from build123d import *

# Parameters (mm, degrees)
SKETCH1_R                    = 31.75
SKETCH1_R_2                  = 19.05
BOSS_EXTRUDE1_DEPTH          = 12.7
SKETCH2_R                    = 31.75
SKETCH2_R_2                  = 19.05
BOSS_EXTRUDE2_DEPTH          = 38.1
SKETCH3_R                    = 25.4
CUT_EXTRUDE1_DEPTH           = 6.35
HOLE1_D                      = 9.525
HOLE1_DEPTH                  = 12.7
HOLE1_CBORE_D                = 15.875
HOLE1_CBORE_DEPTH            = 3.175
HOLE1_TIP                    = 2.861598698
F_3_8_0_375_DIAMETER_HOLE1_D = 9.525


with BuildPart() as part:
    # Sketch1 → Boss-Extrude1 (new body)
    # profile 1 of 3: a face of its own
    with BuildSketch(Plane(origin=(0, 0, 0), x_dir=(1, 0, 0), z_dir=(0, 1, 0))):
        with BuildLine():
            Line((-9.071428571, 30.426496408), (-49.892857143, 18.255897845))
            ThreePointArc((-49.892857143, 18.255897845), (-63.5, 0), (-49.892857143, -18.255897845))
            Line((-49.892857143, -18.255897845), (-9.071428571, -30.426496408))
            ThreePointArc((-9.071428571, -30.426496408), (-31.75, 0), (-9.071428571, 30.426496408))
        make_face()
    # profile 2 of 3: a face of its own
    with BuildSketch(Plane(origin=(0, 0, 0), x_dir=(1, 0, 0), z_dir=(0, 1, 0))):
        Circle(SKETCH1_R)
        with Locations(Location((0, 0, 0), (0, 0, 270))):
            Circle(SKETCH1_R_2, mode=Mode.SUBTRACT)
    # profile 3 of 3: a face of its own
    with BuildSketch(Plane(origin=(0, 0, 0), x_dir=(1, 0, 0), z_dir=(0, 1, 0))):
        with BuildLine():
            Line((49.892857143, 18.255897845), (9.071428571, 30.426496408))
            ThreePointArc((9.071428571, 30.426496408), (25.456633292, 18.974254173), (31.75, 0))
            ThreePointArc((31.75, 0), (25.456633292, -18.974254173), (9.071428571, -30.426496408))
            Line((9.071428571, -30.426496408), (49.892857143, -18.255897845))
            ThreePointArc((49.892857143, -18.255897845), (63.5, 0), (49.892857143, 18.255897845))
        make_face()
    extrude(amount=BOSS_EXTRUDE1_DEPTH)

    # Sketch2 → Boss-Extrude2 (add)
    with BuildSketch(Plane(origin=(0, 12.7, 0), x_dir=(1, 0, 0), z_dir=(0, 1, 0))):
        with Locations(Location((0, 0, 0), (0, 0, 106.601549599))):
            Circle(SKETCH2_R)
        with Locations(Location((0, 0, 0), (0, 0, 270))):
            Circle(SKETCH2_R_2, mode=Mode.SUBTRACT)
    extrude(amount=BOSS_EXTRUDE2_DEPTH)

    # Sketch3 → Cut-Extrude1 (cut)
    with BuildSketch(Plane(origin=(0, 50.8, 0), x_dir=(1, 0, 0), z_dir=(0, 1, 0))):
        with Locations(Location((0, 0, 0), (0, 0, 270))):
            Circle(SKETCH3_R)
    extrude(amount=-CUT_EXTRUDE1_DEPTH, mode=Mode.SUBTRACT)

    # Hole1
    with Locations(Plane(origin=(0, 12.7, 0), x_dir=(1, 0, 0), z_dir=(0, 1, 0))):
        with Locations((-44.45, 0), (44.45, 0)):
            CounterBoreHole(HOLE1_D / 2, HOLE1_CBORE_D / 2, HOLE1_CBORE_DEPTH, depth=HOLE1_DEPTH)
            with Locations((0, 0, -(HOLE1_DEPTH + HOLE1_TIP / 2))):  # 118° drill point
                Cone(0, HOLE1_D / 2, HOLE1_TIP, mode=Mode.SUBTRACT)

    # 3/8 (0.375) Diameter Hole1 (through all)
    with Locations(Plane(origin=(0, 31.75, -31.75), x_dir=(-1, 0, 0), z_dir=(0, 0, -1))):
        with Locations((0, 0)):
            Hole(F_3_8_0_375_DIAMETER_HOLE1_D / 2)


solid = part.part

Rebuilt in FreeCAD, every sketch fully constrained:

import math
import FreeCAD as App
import Part
import Sketcher
from FreeCAD import Vector
Q = App.Units.Quantity

doc = App.newDocument("Part")
body = doc.addObject("PartDesign::Body", "Body")

# Sketch on XZ plane
sketch1 = body.newObject("Sketcher::SketchObject", "Sketch")
sketch1.AttachmentSupport = (doc.getObject("XZ_Plane"), [""])
sketch1.MapMode = "FlatFace"
sketch1.addGeometry(Part.LineSegment(Vector(-9.071429, -30.426496, 0), Vector(-49.892857, -18.255898, 0)), False)
sketch1.addGeometry(Part.ArcOfCircle(Part.Circle(Vector(-44.45, 0, 0), Vector(0, 0, 1), 19.05), math.radians(106.60155), math.radians(253.39845)), False)
sketch1.addGeometry(Part.LineSegment(Vector(-49.892857, 18.255898, 0), Vector(-9.071429, 30.426496, 0)), False)
sketch1.addGeometry(Part.ArcOfCircle(Part.Circle(Vector(0, 0, 0), Vector(0, 0, 1), 31.75), math.radians(73.39845), math.radians(106.60155)), False)
sketch1.addGeometry(Part.LineSegment(Vector(9.071429, 30.426496, 0), Vector(49.892857, 18.255898, 0)), False)
sketch1.addGeometry(Part.ArcOfCircle(Part.Circle(Vector(44.45, 0, 0), Vector(0, 0, 1), 19.05), math.radians(-73.39845), math.radians(73.39845)), False)
sketch1.addGeometry(Part.LineSegment(Vector(49.892857, -18.255898, 0), Vector(9.071429, -30.426496, 0)), False)
sketch1.addGeometry(Part.ArcOfCircle(Part.Circle(Vector(0, 0, 0), Vector(0, 0, 1), 31.75), math.radians(-106.60155), math.radians(-73.39845)), False)
sketch1.addGeometry(Part.Circle(Vector(0, 0, 0), Vector(0, 0, 1), 19.05), False)
sketch1.addConstraint(Sketcher.Constraint("Tangent", 0, 2, 1, 2))
sketch1.addConstraint(Sketcher.Constraint("Tangent", 1, 1, 2, 1))
sketch1.addConstraint(Sketcher.Constraint("Tangent", 2, 2, 3, 2))
sketch1.addConstraint(Sketcher.Constraint("Tangent", 3, 1, 4, 1))
sketch1.addConstraint(Sketcher.Constraint("Tangent", 4, 2, 5, 2))
sketch1.addConstraint(Sketcher.Constraint("Tangent", 5, 1, 6, 1))
sketch1.addConstraint(Sketcher.Constraint("Tangent", 6, 2, 7, 2))
sketch1.addConstraint(Sketcher.Constraint("Tangent", 7, 1, 0, 1))
sketch1.addConstraint(Sketcher.Constraint("Coincident", 3, 3, -1, 1))
sketch1.addConstraint(Sketcher.Constraint("Coincident", 7, 3, -1, 1))
sketch1.addConstraint(Sketcher.Constraint("Coincident", 8, 3, -1, 1))
sketch1.addConstraint(Sketcher.Constraint("Equal", 1, 5))
sketch1.addConstraint(Sketcher.Constraint("Equal", 3, 7))
sketch1.addConstraint(Sketcher.Constraint("Equal", 5, 8))
sketch1.addConstraint(Sketcher.Constraint("Symmetric", 1, 3, 5, 3, -1, 1))
sketch1.addConstraint(Sketcher.Constraint("PointOnObject", 1, 3, -1))
sketch1.addConstraint(Sketcher.Constraint("Diameter", 8, Q("1.5 in")))
sketch1.addConstraint(Sketcher.Constraint("Radius", 3, Q("1.25 in")))
sketch1.addConstraint(Sketcher.Constraint("DistanceX", 1, 3, 5, 3, Q("3.5 in")))
pad1 = body.newObject("PartDesign::Pad", "Pad")
pad1.Profile = sketch1
pad1.Length = Q("0.5 in")
pad1.Reversed = True

# Sketch on XZ plane
sketch2 = body.newObject("Sketcher::SketchObject", "Sketch001")
sketch2.AttachmentSupport = (doc.getObject("XZ_Plane"), [""])
sketch2.MapMode = "FlatFace"
sketch2.AttachmentOffset = App.Placement(Vector(0, 0, -0.5 * 25.4), App.Rotation())
sketch2.addGeometry(Part.Circle(Vector(0, 0, 0), Vector(0, 0, 1), 31.75), False)
sketch2.addGeometry(Part.Circle(Vector(0, 0, 0), Vector(0, 0, 1), 19.05), False)
sketch2.addConstraint(Sketcher.Constraint("Coincident", 0, 3, -1, 1))
sketch2.addConstraint(Sketcher.Constraint("Coincident", 1, 3, -1, 1))
sketch2.addConstraint(Sketcher.Constraint("Diameter", 0, Q("2.5 in")))
sketch2.addConstraint(Sketcher.Constraint("Diameter", 1, Q("1.5 in")))
pad2 = body.newObject("PartDesign::Pad", "Pad001")
pad2.Profile = sketch2
pad2.Length = Q("1.5 in")
pad2.Reversed = True

# Sketch on XZ plane
sketch3 = body.newObject("Sketcher::SketchObject", "Sketch002")
sketch3.AttachmentSupport = (doc.getObject("XZ_Plane"), [""])
sketch3.MapMode = "FlatFace"
sketch3.AttachmentOffset = App.Placement(Vector(0, 0, -2 * 25.4), App.Rotation())
sketch3.addGeometry(Part.Circle(Vector(0, 0, 0), Vector(0, 0, 1), 25.4), False)
sketch3.addConstraint(Sketcher.Constraint("Coincident", 0, 3, -1, 1))
sketch3.addConstraint(Sketcher.Constraint("Diameter", 0, Q("2 in")))
pocket1 = body.newObject("PartDesign::Pocket", "Pocket")
pocket1.Profile = sketch3
pocket1.Length = Q("0.25 in")
pocket1.Reversed = True

# Sketch on XZ plane
sketch4 = body.newObject("Sketcher::SketchObject", "Sketch003")
sketch4.AttachmentSupport = (doc.getObject("XZ_Plane"), [""])
sketch4.MapMode = "FlatFace"
sketch4.AttachmentOffset = App.Placement(Vector(0, 0, -0.5 * 25.4), App.Rotation())
sketch4.addGeometry(Part.Circle(Vector(-44.45, 0, 0), Vector(0, 0, 1), 4.7625), False)
sketch4.addGeometry(Part.Circle(Vector(44.45, 0, 0), Vector(0, 0, 1), 4.7625), False)
sketch4.addConstraint(Sketcher.Constraint("Equal", 0, 1))
sketch4.addConstraint(Sketcher.Constraint("Symmetric", 0, 3, 1, 3, -1, 1))
sketch4.addConstraint(Sketcher.Constraint("PointOnObject", 0, 3, -1))
sketch4.addConstraint(Sketcher.Constraint("Diameter", 0, Q("0.375 in")))
sketch4.addConstraint(Sketcher.Constraint("DistanceX", 0, 3, 1, 3, Q("3.5 in")))
doc.recompute()
hole = body.newObject("PartDesign::Hole", "Hole")
hole.Profile = sketch4
hole.ThreadType = "None"
hole.Diameter = Q("0.375 in")
hole.DepthType = "Dimension"
hole.Depth = Q("0.5 in")
hole.DrillPoint = "Angled"
hole.DrillPointAngle = 118
hole.HoleCutType = "Counterbore"
hole.HoleCutDiameter = Q("0.625 in")
hole.HoleCutDepth = Q("0.125 in")
hole.Reversed = True

# Sketch on XY plane
sketch5 = body.newObject("Sketcher::SketchObject", "Sketch004")
sketch5.AttachmentSupport = (doc.getObject("XY_Plane"), [""])
sketch5.MapMode = "FlatFace"
sketch5.AttachmentOffset = App.Placement(Vector(0, 0, -1.25 * 25.4), App.Rotation())
sketch5.addGeometry(Part.Circle(Vector(0, 31.75, 0), Vector(0, 0, 1), 4.7625), False)
sketch5.addConstraint(Sketcher.Constraint("PointOnObject", 0, 3, -2))
sketch5.addConstraint(Sketcher.Constraint("Diameter", 0, Q("0.375 in")))
sketch5.addConstraint(Sketcher.Constraint("DistanceY", -1, 1, 0, 3, Q("1.25 in")))
doc.recompute()
hole2 = body.newObject("PartDesign::Hole", "Hole001")
hole2.Profile = sketch5
hole2.ThreadType = "None"
hole2.Diameter = Q("0.375 in")
hole2.DepthType = "ThroughAll"
hole2.Reversed = True

doc.recompute()
